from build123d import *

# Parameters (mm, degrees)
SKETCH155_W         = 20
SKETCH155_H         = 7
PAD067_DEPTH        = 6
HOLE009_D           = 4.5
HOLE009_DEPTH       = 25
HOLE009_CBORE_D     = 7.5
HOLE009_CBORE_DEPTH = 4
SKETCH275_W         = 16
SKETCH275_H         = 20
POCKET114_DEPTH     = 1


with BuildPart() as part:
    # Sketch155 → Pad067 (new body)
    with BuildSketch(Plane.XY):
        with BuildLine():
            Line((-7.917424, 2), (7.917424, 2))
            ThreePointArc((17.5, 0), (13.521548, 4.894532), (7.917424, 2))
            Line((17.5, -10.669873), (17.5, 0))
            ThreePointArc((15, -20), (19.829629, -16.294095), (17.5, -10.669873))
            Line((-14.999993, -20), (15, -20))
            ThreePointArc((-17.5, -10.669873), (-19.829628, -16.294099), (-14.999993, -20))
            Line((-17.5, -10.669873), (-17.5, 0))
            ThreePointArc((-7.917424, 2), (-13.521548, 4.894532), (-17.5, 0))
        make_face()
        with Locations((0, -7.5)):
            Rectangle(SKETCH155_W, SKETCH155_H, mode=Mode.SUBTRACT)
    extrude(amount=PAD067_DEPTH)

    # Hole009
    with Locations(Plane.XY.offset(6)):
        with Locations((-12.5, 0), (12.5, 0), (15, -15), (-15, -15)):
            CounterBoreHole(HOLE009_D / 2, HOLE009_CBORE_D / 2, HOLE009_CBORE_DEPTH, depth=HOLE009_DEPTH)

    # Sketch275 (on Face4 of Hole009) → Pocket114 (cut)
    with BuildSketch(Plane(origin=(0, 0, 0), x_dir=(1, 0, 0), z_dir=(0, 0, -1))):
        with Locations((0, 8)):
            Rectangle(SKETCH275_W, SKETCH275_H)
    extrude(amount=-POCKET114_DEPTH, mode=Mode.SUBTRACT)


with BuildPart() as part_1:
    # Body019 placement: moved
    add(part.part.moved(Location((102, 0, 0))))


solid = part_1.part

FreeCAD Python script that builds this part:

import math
import FreeCAD as App
import Part
import Sketcher

doc = App.newDocument("Part")
body = doc.addObject("PartDesign::Body", "Body")

# Sketch on XY plane
sketch1 = body.newObject("Sketcher::SketchObject", "Sketch")
sketch1.AttachmentSupport = (doc.getObject("XY_Plane"), [""])
sketch1.MapMode = "FlatFace"
sketch1.addGeometry(Part.LineSegment(App.Vector(7.917424, 2, 0), App.Vector(-7.917424, 2, 0)), False)
sketch1.addGeometry(Part.ArcOfCircle(Part.Circle(App.Vector(-12.5, 0, 0), App.Vector(0, 0, 1), 5), math.radians(23.578174), math.radians(180.000004)), False)
sketch1.addGeometry(Part.LineSegment(App.Vector(-17.5, 0, 0), App.Vector(-17.5, -10.669873, 0)), False)
sketch1.addGeometry(Part.ArcOfCircle(Part.Circle(App.Vector(-15, -15, 0), App.Vector(0, 0, 1), 5), math.radians(120.000002), math.radians(270.000079)), False)
sketch1.addGeometry(Part.LineSegment(App.Vector(-14.999993, -20, 0), App.Vector(15, -20, 0)), False)
sketch1.addGeometry(Part.ArcOfCircle(Part.Circle(App.Vector(15, -15, 0), App.Vector(0, 0, 1), 5), math.radians(-89.999997), math.radians(59.999997)), False)
sketch1.addGeometry(Part.LineSegment(App.Vector(17.5, -10.669873, 0), App.Vector(17.5, 0, 0)), False)
sketch1.addGeometry(Part.ArcOfCircle(Part.Circle(App.Vector(12.5, 0, 0), App.Vector(0, 0, 1), 5), math.radians(-0.000004), math.radians(156.421826)), False)
sketch1.addGeometry(Part.LineSegment(App.Vector(-10, -11, 0), App.Vector(-10, -4, 0)), False)
sketch1.addGeometry(Part.LineSegment(App.Vector(-10, -4, 0), App.Vector(10, -4, 0)), False)
sketch1.addGeometry(Part.LineSegment(App.Vector(10, -4, 0), App.Vector(10, -11, 0)), False)
sketch1.addGeometry(Part.LineSegment(App.Vector(10, -11, 0), App.Vector(-10, -11, 0)), False)
sketch1.addConstraint(Sketcher.Constraint("Coincident", 0, 2, 1, 1))
sketch1.addConstraint(Sketcher.Constraint("Tangent", 1, 2, 2, 1))
sketch1.addConstraint(Sketcher.Constraint("Coincident", 2, 2, 3, 1))
sketch1.addConstraint(Sketcher.Constraint("Tangent", 3, 2, 4, 1))
sketch1.addConstraint(Sketcher.Constraint("Tangent", 4, 2, 5, 1))
sketch1.addConstraint(Sketcher.Constraint("Coincident", 5, 2, 6, 1))
sketch1.addConstraint(Sketcher.Constraint("Tangent", 6, 2, 7, 1))
sketch1.addConstraint(Sketcher.Constraint("Coincident", 7, 2, 0, 1))
sketch1.addConstraint(Sketcher.Constraint("Coincident", 8, 2, 9, 1))
sketch1.addConstraint(Sketcher.Constraint("Coincident", 9, 2, 10, 1))
sketch1.addConstraint(Sketcher.Constraint("Coincident", 10, 2, 11, 1))
sketch1.addConstraint(Sketcher.Constraint("Coincident", 11, 2, 8, 1))
sketch1.addConstraint(Sketcher.Constraint("Horizontal", 0))
sketch1.addConstraint(Sketcher.Constraint("Vertical", 2))
sketch1.addConstraint(Sketcher.Constraint("Horizontal", 4))
sketch1.addConstraint(Sketcher.Constraint("Vertical", 6))
sketch1.addConstraint(Sketcher.Constraint("Vertical", 8))
sketch1.addConstraint(Sketcher.Constraint("Horizontal", 9))
sketch1.addConstraint(Sketcher.Constraint("Vertical", 10))
sketch1.addConstraint(Sketcher.Constraint("Horizontal", 11))
sketch1.addConstraint(Sketcher.Constraint("Equal", 1, 3))
sketch1.addConstraint(Sketcher.Constraint("Equal", 3, 5))
sketch1.addConstraint(Sketcher.Constraint("Equal", 5, 7))
sketch1.addConstraint(Sketcher.Constraint("Symmetric", 1, 3, 7, 3, -1, 1))
sketch1.addConstraint(Sketcher.Constraint("PointOnObject", 1, 3, -1))
sketch1.addConstraint(Sketcher.Constraint("Horizontal", 2, 2, 5, 2))
sketch1.addConstraint(Sketcher.Constraint("Radius", 1, 5.0))
sketch1.addConstraint(Sketcher.Constraint("DistanceX", 9, 1, 9, 2, 20.0))
sketch1.addConstraint(Sketcher.Constraint("DistanceY", 8, 1, 8, 2, 7.0))
sketch1.addConstraint(Sketcher.Constraint("DistanceX", 3, 3, -1, 1, 15.0))
sketch1.addConstraint(Sketcher.Constraint("DistanceY", 3, 3, -1, 1, 15.0))
sketch1.addConstraint(Sketcher.Constraint("DistanceY", -1, 1, 0, 2, 2.0))
sketch1.addConstraint(Sketcher.Constraint("DistanceX", 8, 2, -1, 1, 10.0))
sketch1.addConstraint(Sketcher.Constraint("DistanceY", 8, 2, -1, 1, 4.0))
sketch1.addConstraint(Sketcher.Constraint("DistanceX", 1, 3, 7, 3, 25.0))
pad1 = body.newObject("PartDesign::Pad", "Pad")
pad1.Profile = sketch1
pad1.Length = 6

# Sketch on XY plane
sketch2 = body.newObject("Sketcher::SketchObject", "Sketch001")
sketch2.AttachmentSupport = (doc.getObject("XY_Plane"), [""])
sketch2.MapMode = "FlatFace"
sketch2.AttachmentOffset = App.Placement(App.Vector(0, 0, 6), App.Rotation())
sketch2.addGeometry(Part.Circle(App.Vector(-12.5, 0, 0), App.Vector(0, 0, 1), 2.25), False)
sketch2.addGeometry(Part.Circle(App.Vector(12.5, 0, 0), App.Vector(0, 0, 1), 2.25), False)
sketch2.addGeometry(Part.Circle(App.Vector(15, -15, 0), App.Vector(0, 0, 1), 2.25), False)
sketch2.addGeometry(Part.Circle(App.Vector(-15, -15, 0), App.Vector(0, 0, 1), 2.25), False)
sketch2.addConstraint(Sketcher.Constraint("Equal", 0, 1))
sketch2.addConstraint(Sketcher.Constraint("Equal", 1, 2))
sketch2.addConstraint(Sketcher.Constraint("Equal", 2, 3))
sketch2.addConstraint(Sketcher.Constraint("Symmetric", 0, 3, 1, 3, -1, 1))
sketch2.addConstraint(Sketcher.Constraint("Symmetric", 2, 3, 3, 3, -2))
sketch2.addConstraint(Sketcher.Constraint("PointOnObject", 0, 3, -1))
sketch2.addConstraint(Sketcher.Constraint("Diameter", 0, 4.5))
sketch2.addConstraint(Sketcher.Constraint("DistanceX", -1, 1, 2, 3, 15.0))
sketch2.addConstraint(Sketcher.Constraint("DistanceY", 2, 3, -1, 1, 15.0))
sketch2.addConstraint(Sketcher.Constraint("DistanceX", 0, 3, 1, 3, 25.0))
doc.recompute()
hole = body.newObject("PartDesign::Hole", "Hole")
hole.Profile = sketch2
hole.ThreadType = "None"
hole.Diameter = 4.5
hole.DepthType = "Dimension"
hole.Depth = 25
hole.DrillPoint = "Flat"
hole.HoleCutType = "Counterbore"
hole.HoleCutDiameter = 7.5
hole.HoleCutDepth = 4

# Sketch on XY plane
sketch3 = body.newObject("Sketcher::SketchObject", "Sketch002")
sketch3.AttachmentSupport = (doc.getObject("XY_Plane"), [""])
sketch3.MapMode = "FlatFace"
sketch3.addGeometry(Part.LineSegment(App.Vector(-8, -18, 0), App.Vector(-8, 2, 0)), False)
sketch3.addGeometry(Part.LineSegment(App.Vector(-8, 2, 0), App.Vector(8, 2, 0)), False)
sketch3.addGeometry(Part.LineSegment(App.Vector(8, 2, 0), App.Vector(8, -18, 0)), False)
sketch3.addGeometry(Part.LineSegment(App.Vector(8, -18, 0), App.Vector(-8, -18, 0)), False)
sketch3.addConstraint(Sketcher.Constraint("Coincident", 0, 2, 1, 1))
sketch3.addConstraint(Sketcher.Constraint("Coincident", 1, 2, 2, 1))
sketch3.addConstraint(Sketcher.Constraint("Coincident", 2, 2, 3, 1))
sketch3.addConstraint(Sketcher.Constraint("Coincident", 3, 2, 0, 1))
sketch3.addConstraint(Sketcher.Constraint("Vertical", 0))
sketch3.addConstraint(Sketcher.Constraint("Horizontal", 1))
sketch3.addConstraint(Sketcher.Constraint("Vertical", 2))
sketch3.addConstraint(Sketcher.Constraint("Horizontal", 3))
sketch3.addConstraint(Sketcher.Constraint("DistanceX", 1, 1, 1, 2, 16.0))
sketch3.addConstraint(Sketcher.Constraint("DistanceY", 0, 1, 0, 2, 20.0))
sketch3.addConstraint(Sketcher.Constraint("DistanceX", 0, 2, -1, 1, 8.0))
sketch3.addConstraint(Sketcher.Constraint("DistanceY", -1, 1, 0, 2, 2.0))
pocket1 = body.newObject("PartDesign::Pocket", "Pocket")
pocket1.Profile = sketch3
pocket1.Length = 1
pocket1.Reversed = True
body2 = doc.addObject("PartDesign::Body", "Body001")
doc.recompute()

body.Placement = App.Placement(App.Vector(102, 0, 0), App.Rotation(App.Vector(0, 0, 1), 0))
boolean = body2.newObject("PartDesign::Boolean", "Boolean")
boolean.Type = "Fuse"
boolean.addObjects([body])

doc.recompute()
